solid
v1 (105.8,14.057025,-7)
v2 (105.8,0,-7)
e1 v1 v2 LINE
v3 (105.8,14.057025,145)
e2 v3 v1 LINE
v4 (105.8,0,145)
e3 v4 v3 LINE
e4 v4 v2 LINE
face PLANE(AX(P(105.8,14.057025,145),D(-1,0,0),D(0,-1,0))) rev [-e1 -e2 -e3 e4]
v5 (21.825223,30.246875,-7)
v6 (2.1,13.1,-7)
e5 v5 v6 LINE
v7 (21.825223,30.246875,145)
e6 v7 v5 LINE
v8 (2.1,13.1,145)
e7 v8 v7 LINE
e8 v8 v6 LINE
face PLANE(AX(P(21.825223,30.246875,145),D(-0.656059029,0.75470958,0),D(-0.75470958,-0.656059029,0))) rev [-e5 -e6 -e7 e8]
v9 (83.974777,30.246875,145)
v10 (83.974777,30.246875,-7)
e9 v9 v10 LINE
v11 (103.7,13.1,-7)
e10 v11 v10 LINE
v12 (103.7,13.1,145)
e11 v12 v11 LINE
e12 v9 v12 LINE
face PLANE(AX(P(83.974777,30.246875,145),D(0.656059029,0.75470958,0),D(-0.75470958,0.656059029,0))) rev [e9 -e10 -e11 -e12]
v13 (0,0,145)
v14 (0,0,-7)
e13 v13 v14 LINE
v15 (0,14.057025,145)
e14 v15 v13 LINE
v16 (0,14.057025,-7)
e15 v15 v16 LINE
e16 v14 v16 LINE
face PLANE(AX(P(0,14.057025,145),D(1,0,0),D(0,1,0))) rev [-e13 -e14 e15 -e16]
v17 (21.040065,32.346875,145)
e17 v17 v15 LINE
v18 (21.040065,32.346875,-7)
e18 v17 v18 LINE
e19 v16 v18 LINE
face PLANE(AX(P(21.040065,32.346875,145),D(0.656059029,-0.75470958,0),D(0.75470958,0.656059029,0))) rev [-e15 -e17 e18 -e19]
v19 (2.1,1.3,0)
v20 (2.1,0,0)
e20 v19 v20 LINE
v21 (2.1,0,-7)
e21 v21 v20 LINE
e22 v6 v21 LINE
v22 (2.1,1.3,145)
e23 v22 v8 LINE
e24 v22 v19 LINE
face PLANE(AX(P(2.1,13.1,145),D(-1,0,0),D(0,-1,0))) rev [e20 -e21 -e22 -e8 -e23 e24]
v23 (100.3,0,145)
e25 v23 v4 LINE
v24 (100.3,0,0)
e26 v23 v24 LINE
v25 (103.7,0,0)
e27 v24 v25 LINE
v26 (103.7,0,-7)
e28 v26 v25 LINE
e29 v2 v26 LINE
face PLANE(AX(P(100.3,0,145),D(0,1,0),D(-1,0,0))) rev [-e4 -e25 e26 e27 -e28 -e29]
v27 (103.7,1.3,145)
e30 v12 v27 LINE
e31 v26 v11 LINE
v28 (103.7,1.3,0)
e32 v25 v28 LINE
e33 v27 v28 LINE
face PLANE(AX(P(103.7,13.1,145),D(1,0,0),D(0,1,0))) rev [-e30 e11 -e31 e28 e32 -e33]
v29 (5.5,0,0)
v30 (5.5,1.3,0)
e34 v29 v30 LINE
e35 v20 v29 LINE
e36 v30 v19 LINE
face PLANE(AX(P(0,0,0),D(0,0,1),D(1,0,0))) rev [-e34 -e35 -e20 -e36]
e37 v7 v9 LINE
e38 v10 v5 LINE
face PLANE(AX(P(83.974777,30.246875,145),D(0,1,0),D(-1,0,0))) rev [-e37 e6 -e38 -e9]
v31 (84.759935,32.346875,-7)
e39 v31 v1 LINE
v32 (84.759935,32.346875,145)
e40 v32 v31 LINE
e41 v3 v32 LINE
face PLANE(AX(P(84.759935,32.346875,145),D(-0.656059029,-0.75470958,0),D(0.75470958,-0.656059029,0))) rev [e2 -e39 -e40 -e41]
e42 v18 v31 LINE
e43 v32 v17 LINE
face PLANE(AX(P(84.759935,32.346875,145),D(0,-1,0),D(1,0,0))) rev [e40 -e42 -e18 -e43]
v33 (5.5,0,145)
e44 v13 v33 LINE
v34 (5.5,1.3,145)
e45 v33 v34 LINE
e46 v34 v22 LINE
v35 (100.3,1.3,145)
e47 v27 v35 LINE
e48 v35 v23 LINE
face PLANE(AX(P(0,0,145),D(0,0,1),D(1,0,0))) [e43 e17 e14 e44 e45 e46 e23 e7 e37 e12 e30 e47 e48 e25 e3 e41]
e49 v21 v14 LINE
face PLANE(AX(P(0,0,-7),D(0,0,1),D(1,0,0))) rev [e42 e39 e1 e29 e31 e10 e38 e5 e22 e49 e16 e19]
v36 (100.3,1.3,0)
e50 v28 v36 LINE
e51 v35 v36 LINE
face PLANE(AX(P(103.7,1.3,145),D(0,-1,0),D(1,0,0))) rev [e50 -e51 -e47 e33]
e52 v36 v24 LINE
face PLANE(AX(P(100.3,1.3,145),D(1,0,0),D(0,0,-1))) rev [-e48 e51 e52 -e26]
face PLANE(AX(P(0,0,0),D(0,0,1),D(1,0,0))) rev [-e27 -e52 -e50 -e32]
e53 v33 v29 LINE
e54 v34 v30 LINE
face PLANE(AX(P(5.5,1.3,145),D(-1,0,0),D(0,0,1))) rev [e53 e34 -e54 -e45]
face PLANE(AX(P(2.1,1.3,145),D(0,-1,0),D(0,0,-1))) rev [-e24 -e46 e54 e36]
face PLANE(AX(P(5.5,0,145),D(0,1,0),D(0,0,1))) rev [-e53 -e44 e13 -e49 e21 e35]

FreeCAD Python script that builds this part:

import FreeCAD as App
import Part
import Sketcher

V = App.Vector
Q = App.Units.Quantity


def add_polygon(sketch, points):
    """Adds a closed chain of lines whose ends are joined by coincident constraints."""
    first, n = sketch.GeometryCount, len(points)
    for a, b in zip(points, points[1:] + points[:1]):
        sketch.addGeometry(Part.LineSegment(App.Vector(*a, 0), App.Vector(*b, 0)), False)
    for i in range(n):
        sketch.addConstraint(Sketcher.Constraint("Coincident", first + i, 2, first + (i + 1) % n, 1))

doc = App.newDocument("Part")
body = doc.addObject("PartDesign::Body", "Body")

# Sketch on XY plane
sketch1 = body.newObject("Sketcher::SketchObject", "Sketch")
sketch1.AttachmentSupport = (doc.getObject("XY_Plane"), [""])
sketch1.MapMode = "FlatFace"
add_polygon(sketch1, [(5.5, 1.3), (2.1, 1.3), (2.1, 13.1), (21.8, 30.2), (84, 30.2), (103.7, 13.1), (103.7, 1.3), (100.3, 1.3), (100.3, 0), (105.8, 0), (105.8, 14.1), (84.8, 32.3), (21, 32.3), (0, 14.1), (0, 0), (5.5, 0)])  # lines 0-15
sketch1.addConstraint(Sketcher.Constraint("Horizontal", 0))
sketch1.addConstraint(Sketcher.Constraint("Vertical", 1))
sketch1.addConstraint(Sketcher.Constraint("Horizontal", 3))
sketch1.addConstraint(Sketcher.Constraint("Vertical", 5))
sketch1.addConstraint(Sketcher.Constraint("Horizontal", 6))
sketch1.addConstraint(Sketcher.Constraint("Vertical", 7))
sketch1.addConstraint(Sketcher.Constraint("Horizontal", 8))
sketch1.addConstraint(Sketcher.Constraint("Vertical", 9))
sketch1.addConstraint(Sketcher.Constraint("Horizontal", 11))
sketch1.addConstraint(Sketcher.Constraint("Vertical", 13))
sketch1.addConstraint(Sketcher.Constraint("Horizontal", 14))
sketch1.addConstraint(Sketcher.Constraint("Vertical", 15))
sketch1.addConstraint(Sketcher.Constraint("Coincident", 13, 2, -1, 1))
sketch1.addConstraint(Sketcher.Constraint("PointOnObject", 7, 2, -1))
sketch1.addConstraint(Sketcher.Constraint("Parallel", 4, 10))
sketch1.addConstraint(Sketcher.Constraint("Parallel", 2, 12))
sketch1.addConstraint(Sketcher.Constraint("Horizontal", 1, 2, 4, 2))
sketch1.addConstraint(Sketcher.Constraint("Horizontal", 0, 2, 5, 2))
sketch1.addConstraint(Sketcher.Constraint("Horizontal", 9, 2, 12, 2))
sketch1.addConstraint(Sketcher.Constraint("Equal", 0, 6))
sketch1.addConstraint(Sketcher.Constraint("Equal", 8, 14))
sketch1.addConstraint(Sketcher.Constraint("Equal", 2, 4))
sketch1.addConstraint(Sketcher.Constraint("Angle", 2, Q("41 deg")))
sketch1.addConstraint(Sketcher.Constraint("DistanceX", 0, 2, 0, 1, 3.4))
sketch1.addConstraint(Sketcher.Constraint("DistanceX", 8, 1, 8, 2, 5.5))
sketch1.addConstraint(Sketcher.Constraint("DistanceY", 1, 1, 1, 2, 11.8))
sketch1.addConstraint(Sketcher.Constraint("DistanceY", 7, 2, 7, 1, 1.3))
sketch1.addConstraint(Sketcher.Constraint("DistanceX", -1, 1, 4, 2, 103.7))
sketch1.addConstraint(Sketcher.Constraint("DistanceY", 3, 2, 10, 2, 2.1))
sketch1.addConstraint(Sketcher.Constraint("DistanceX", 11, 2, 11, 1, 63.71987))
sketch1.addConstraint(Sketcher.Constraint("DistanceX", 3, 1, 3, 2, 62.149554))
pad1 = body.newObject("PartDesign::Pad", "Pad")
pad1.Profile = sketch1
pad1.Length = 145

# Sketch on XY plane
sketch2 = body.newObject("Sketcher::SketchObject", "Sketch001")
sketch2.AttachmentSupport = (doc.getObject("XY_Plane"), [""])
sketch2.MapMode = "FlatFace"
add_polygon(sketch2, [(2.1, 0), (0, 0), (0, 14.1), (21, 32.3), (84.8, 32.3), (105.8, 14.1), (105.8, 0), (103.7, 0), (103.7, 13.1), (84, 30.2), (21.8, 30.2), (2.1, 13.1)])  # lines 0-11
sketch2.addConstraint(Sketcher.Constraint("Horizontal", 0))
sketch2.addConstraint(Sketcher.Constraint("Vertical", 1))
sketch2.addConstraint(Sketcher.Constraint("Horizontal", 3))
sketch2.addConstraint(Sketcher.Constraint("Vertical", 5))
sketch2.addConstraint(Sketcher.Constraint("Horizontal", 6))
sketch2.addConstraint(Sketcher.Constraint("Vertical", 7))
sketch2.addConstraint(Sketcher.Constraint("Horizontal", 9))
sketch2.addConstraint(Sketcher.Constraint("Vertical", 11))
sketch2.addConstraint(Sketcher.Constraint("Coincident", 0, 2, -1, 1))
sketch2.addConstraint(Sketcher.Constraint("PointOnObject", 5, 2, -1))
sketch2.addConstraint(Sketcher.Constraint("Parallel", 4, 8))
sketch2.addConstraint(Sketcher.Constraint("Parallel", 2, 10))
sketch2.addConstraint(Sketcher.Constraint("Horizontal", 1, 2, 4, 2))
sketch2.addConstraint(Sketcher.Constraint("Horizontal", 7, 2, 10, 2))
sketch2.addConstraint(Sketcher.Constraint("Equal", 0, 6))
sketch2.addConstraint(Sketcher.Constraint("Equal", 2, 4))
sketch2.addConstraint(Sketcher.Constraint("Angle", 2, Q("41 deg")))
sketch2.addConstraint(Sketcher.Constraint("DistanceX", 0, 2, 0, 1, 2.1))
sketch2.addConstraint(Sketcher.Constraint("DistanceY", 7, 1, 7, 2, 13.1))
sketch2.addConstraint(Sketcher.Constraint("DistanceX", -1, 1, 4, 2, 105.8))
sketch2.addConstraint(Sketcher.Constraint("DistanceY", 8, 2, 3, 2, 2.1))
sketch2.addConstraint(Sketcher.Constraint("DistanceX", 3, 1, 3, 2, 63.71987))
sketch2.addConstraint(Sketcher.Constraint("DistanceX", 9, 2, 9, 1, 62.149554))
pad2 = body.newObject("PartDesign::Pad", "Pad001")
pad2.Profile = sketch2
pad2.Length = 7
pad2.Reversed = True

doc.recompute()
